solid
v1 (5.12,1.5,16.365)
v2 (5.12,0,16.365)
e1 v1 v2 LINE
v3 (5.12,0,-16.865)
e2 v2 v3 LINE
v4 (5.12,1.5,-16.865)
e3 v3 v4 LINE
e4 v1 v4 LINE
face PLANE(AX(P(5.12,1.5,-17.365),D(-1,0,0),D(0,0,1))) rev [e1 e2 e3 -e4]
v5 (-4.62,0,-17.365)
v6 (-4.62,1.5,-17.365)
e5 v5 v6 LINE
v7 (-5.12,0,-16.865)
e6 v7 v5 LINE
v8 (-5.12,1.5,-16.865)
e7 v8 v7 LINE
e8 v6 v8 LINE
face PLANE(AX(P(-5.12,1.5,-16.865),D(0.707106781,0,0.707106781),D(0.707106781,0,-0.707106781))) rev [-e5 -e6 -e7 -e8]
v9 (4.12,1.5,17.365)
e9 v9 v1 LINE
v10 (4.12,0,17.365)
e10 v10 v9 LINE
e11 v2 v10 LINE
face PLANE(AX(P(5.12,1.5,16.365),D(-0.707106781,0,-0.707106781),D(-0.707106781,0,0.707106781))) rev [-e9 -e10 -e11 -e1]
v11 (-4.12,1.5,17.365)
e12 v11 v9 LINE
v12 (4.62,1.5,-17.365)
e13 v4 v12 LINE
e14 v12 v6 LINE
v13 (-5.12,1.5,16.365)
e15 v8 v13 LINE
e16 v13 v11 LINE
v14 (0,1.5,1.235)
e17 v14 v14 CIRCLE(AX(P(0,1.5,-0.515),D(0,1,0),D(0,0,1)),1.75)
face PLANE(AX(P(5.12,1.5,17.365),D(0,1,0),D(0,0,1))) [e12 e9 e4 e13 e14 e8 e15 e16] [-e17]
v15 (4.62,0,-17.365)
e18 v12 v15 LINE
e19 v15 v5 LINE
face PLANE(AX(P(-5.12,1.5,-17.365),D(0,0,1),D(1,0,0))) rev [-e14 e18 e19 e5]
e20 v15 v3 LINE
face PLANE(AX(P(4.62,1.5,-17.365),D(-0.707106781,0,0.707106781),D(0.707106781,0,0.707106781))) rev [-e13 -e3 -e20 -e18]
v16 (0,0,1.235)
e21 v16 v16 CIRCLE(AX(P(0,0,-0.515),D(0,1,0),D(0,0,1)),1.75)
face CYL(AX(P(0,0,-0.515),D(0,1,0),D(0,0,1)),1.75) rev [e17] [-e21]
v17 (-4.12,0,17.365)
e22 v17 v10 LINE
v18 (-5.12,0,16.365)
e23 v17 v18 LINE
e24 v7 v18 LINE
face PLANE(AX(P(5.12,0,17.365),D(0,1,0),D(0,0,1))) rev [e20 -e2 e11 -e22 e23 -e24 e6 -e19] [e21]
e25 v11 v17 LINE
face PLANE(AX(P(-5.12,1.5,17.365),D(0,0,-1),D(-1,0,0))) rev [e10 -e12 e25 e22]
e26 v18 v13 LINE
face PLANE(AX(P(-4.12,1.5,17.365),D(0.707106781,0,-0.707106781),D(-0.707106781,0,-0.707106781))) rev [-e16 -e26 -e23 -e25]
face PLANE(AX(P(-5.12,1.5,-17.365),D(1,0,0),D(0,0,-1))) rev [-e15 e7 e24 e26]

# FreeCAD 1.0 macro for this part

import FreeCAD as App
import Part
import Sketcher

V = App.Vector


def edges_at(feature, points):
    """Names of the edges that pass closest to the given points."""
    edges = feature.Shape.Edges
    near = lambda p: min(range(len(edges)), key=lambda i: edges[i].distToShape(Part.Vertex(*p))[0])
    return sorted({f"Edge{near(p) + 1}" for p in points})


def add_polygon(sketch, points):
    """Adds a closed chain of lines whose ends are joined by coincident constraints."""
    first, n = sketch.GeometryCount, len(points)
    for a, b in zip(points, points[1:] + points[:1]):
        sketch.addGeometry(Part.LineSegment(App.Vector(*a, 0), App.Vector(*b, 0)), False)
    for i in range(n):
        sketch.addConstraint(Sketcher.Constraint("Coincident", first + i, 2, first + (i + 1) % n, 1))

doc = App.newDocument("Part")
body = doc.addObject("PartDesign::Body", "Body")

# Sketch on XZ plane
sketch1 = doc.addObject("Sketcher::SketchObject", "Sketch")
body.addObject(sketch1)
sketch1.AttachmentSupport = (doc.XZ_Plane, [""])
sketch1.MapMode = "FlatFace"
add_polygon(sketch1, [(-5, -17), (-5, 17), (5, 17), (5, -17)])  # lines 0-3
sketch1.addConstraint([
    Sketcher.Constraint("Vertical", 0),
    Sketcher.Constraint("Horizontal", 1),
    Sketcher.Constraint("Vertical", 2),
    Sketcher.Constraint("Horizontal", 3),
    Sketcher.Constraint("Symmetric", 0, 2, 2, 2, -1, 1),
    Sketcher.Constraint("DistanceX", 1, 1, 1, 2, 10.24),
    Sketcher.Constraint("DistanceY", 0, 1, 0, 2, 34.73),
])
pad1 = doc.addObject("PartDesign::Pad", "Pad")
body.addObject(pad1)
pad1.Profile = sketch1
pad1.Length = 1.5
pad1.Reversed = True
doc.recompute()

chamfer = doc.addObject("PartDesign::Chamfer", "Chamfer")
body.addObject(chamfer)
chamfer.Base = (pad1, edges_at(pad1, [(-5.12, 0.75, -17.365), (5.12, 0.75, -17.365)]))
chamfer.Size = 0.5
doc.recompute()

chamfer2 = doc.addObject("PartDesign::Chamfer", "Chamfer001")
body.addObject(chamfer2)
chamfer2.Base = (chamfer, edges_at(chamfer, [(5.12, 0.75, 17.365), (-5.12, 0.75, 17.365)]))
chamfer2.Size = 1

# Sketch on XZ plane
sketch2 = doc.addObject("Sketcher::SketchObject", "Sketch001")
body.addObject(sketch2)
sketch2.AttachmentSupport = (doc.XZ_Plane, [""])
sketch2.MapMode = "FlatFace"
sketch2.AttachmentOffset = App.Placement(V(0, 0, -1.5), App.Rotation())
sketch2.addGeometry(Part.Circle(V(0, -0.5, 0), V(0, 0, 1), 1.8), False)
sketch2.addConstraint([
    Sketcher.Constraint("PointOnObject", 0, 3, -2),
    Sketcher.Constraint("Diameter", 0, 3.5),
    Sketcher.Constraint("DistanceY", 0, 3, -1, 1, 0.515),
])
pocket1 = doc.addObject("PartDesign::Pocket", "Pocket")
body.addObject(pocket1)
pocket1.Profile = sketch2
pocket1.Type = "ThroughAll"
pocket1.Reversed = True

doc.recompute()
